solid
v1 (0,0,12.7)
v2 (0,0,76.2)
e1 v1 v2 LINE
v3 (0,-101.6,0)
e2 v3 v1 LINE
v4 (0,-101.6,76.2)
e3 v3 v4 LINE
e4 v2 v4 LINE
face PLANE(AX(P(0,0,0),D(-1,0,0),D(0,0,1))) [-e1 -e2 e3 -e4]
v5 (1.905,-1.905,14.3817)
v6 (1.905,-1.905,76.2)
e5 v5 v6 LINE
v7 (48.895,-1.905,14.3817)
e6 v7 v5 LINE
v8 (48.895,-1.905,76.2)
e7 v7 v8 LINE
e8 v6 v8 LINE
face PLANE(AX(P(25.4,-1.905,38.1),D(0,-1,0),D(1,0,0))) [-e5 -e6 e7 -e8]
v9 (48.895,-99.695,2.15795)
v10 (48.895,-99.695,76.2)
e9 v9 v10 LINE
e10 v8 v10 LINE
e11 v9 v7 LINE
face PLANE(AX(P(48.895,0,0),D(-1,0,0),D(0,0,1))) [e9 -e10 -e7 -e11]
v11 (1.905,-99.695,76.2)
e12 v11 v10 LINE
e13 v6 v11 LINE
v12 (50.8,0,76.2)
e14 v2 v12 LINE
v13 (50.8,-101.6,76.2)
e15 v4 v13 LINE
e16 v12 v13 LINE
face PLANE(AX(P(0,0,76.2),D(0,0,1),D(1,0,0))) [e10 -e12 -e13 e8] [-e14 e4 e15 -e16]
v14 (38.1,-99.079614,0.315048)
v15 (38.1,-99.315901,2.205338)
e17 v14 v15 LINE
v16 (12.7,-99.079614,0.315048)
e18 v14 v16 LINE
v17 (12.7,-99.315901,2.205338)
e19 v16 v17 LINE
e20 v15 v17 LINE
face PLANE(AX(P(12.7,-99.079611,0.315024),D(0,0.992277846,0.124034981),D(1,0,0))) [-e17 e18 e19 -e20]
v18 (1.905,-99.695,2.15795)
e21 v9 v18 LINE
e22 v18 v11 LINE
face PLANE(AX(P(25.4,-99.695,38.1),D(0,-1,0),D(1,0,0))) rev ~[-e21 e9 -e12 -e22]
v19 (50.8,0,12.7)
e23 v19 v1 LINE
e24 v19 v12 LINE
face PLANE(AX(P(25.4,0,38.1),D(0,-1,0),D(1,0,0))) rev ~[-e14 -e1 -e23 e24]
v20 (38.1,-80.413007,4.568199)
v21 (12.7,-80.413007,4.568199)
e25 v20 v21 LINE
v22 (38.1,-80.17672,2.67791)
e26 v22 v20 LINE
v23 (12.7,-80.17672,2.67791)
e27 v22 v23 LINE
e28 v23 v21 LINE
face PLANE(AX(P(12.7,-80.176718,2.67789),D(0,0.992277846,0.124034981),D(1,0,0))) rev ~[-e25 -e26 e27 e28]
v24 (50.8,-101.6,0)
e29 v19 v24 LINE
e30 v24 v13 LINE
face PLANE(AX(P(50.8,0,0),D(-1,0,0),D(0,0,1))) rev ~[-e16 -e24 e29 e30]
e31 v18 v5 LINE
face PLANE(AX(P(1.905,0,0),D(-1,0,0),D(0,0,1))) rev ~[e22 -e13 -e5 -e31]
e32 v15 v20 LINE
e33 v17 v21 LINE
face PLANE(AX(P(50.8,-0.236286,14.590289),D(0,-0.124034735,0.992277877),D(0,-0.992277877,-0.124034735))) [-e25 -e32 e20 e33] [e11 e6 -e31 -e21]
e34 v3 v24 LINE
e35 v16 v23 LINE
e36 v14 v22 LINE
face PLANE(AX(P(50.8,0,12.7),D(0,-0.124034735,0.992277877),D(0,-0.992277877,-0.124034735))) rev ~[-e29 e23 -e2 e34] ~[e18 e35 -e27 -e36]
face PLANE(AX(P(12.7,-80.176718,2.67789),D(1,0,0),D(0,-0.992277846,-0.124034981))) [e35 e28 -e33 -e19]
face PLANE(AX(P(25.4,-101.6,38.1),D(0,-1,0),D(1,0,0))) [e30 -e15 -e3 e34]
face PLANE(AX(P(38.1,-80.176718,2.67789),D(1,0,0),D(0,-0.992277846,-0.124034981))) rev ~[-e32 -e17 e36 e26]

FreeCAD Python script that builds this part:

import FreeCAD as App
import Part
import Sketcher

V = App.Vector
Q = App.Units.Quantity


def faces_at(feature, points):
    """Names of the faces that lie closest to the given points."""
    faces = feature.Shape.Faces
    near = lambda p: min(range(len(faces)), key=lambda i: faces[i].distToShape(Part.Vertex(*p))[0])
    return sorted({f"Face{near(p) + 1}" for p in points})


def add_polygon(sketch, points):
    """Adds a closed chain of lines whose ends are joined by coincident constraints."""
    first, n = sketch.GeometryCount, len(points)
    for a, b in zip(points, points[1:] + points[:1]):
        sketch.addGeometry(Part.LineSegment(App.Vector(*a, 0), App.Vector(*b, 0)), False)
    for i in range(n):
        sketch.addConstraint(Sketcher.Constraint("Coincident", first + i, 2, first + (i + 1) % n, 1))

doc = App.newDocument("Part")
body = doc.addObject("PartDesign::Body", "Body")

sketch1 = body.newObject("Sketcher::SketchObject", "Sketch")
sketch1.AttachmentSupport = (doc.getObject("XZ_Plane"), [""])
sketch1.MapMode = "FlatFace"
add_polygon(sketch1, [(0, 76.2), (0, 0), (50.8, 0), (50.8, 76.2)])
sketch1.addConstraint([
    Sketcher.Constraint("Vertical", 0),
    Sketcher.Constraint("Horizontal", 1),
    Sketcher.Constraint("Vertical", 2),
    Sketcher.Constraint("Horizontal", 3),
    Sketcher.Constraint("Coincident", 0, 2, -1, 1),
    Sketcher.Constraint("DistanceX", 1, 1, 1, 2, Q("2 in")),
    Sketcher.Constraint("DistanceY", 0, 2, 0, 1, Q("3 in")),
])
pad1 = body.newObject("PartDesign::Pad", "Pad")
pad1.Profile = sketch1
pad1.Length = Q("4 in")

sketch2 = body.newObject("Sketcher::SketchObject", "Sketch001")
sketch2.AttachmentSupport = (doc.getObject("YZ_Plane"), [""])
sketch2.MapMode = "FlatFace"
sketch2.AttachmentOffset = App.Placement(V(0, 0, 2 * 25.4), App.Rotation())
add_polygon(sketch2, [(-101.6, 0), (0, 0), (0, 12.7)])
sketch2.addConstraint([
    Sketcher.Constraint("Horizontal", 0),
    Sketcher.Constraint("Vertical", 1),
    Sketcher.Constraint("Coincident", 0, 2, -1, 1),
    Sketcher.Constraint("DistanceX", 0, 1, 0, 2, Q("4 in")),
    Sketcher.Constraint("DistanceY", 1, 1, 1, 2, Q("0.5 in")),
])
pocket1 = body.newObject("PartDesign::Pocket", "Pocket")
pocket1.Profile = sketch2
pocket1.Type = "ThroughAll"
doc.recompute()

thickness = body.newObject("PartDesign::Thickness", "Thickness")
thickness.Base = (pocket1, faces_at(pocket1, [(25.4, -50.8, 76.2)]))
thickness.Value = Q("0.075 in")
thickness.Reversed = True
thickness.Join = "Arc"

sketch3 = body.newObject("Sketcher::SketchObject", "Sketch002")
sketch3.Placement = App.Placement(V(0, -1.563077, 12.504615), App.Rotation(V(1, 0, 0), V(0, -0.992277846, -0.124034981), V(0, 0.124034981, -0.992277846), "ZXY"))
add_polygon(sketch3, [(12.7, 98.275432), (12.7, 79.225432), (38.1, 79.225432), (38.1, 98.275432)])
sketch3.addConstraint([
    Sketcher.Constraint("Vertical", 0),
    Sketcher.Constraint("Horizontal", 1),
    Sketcher.Constraint("Vertical", 2),
    Sketcher.Constraint("Horizontal", 3),
    Sketcher.Constraint("DistanceX", 1, 1, 1, 2, Q("1 in")),
    Sketcher.Constraint("DistanceY", 0, 2, 0, 1, Q("0.75 in")),
    Sketcher.Constraint("DistanceX", -1, 1, 0, 2, Q("0.5 in")),
    Sketcher.Constraint("DistanceY", -1, 1, 0, 2, 79.225432),
])
pocket2 = body.newObject("PartDesign::Pocket", "Pocket001")
pocket2.Profile = sketch3
pocket2.Length = Q("0.12 in")

doc.recompute()
